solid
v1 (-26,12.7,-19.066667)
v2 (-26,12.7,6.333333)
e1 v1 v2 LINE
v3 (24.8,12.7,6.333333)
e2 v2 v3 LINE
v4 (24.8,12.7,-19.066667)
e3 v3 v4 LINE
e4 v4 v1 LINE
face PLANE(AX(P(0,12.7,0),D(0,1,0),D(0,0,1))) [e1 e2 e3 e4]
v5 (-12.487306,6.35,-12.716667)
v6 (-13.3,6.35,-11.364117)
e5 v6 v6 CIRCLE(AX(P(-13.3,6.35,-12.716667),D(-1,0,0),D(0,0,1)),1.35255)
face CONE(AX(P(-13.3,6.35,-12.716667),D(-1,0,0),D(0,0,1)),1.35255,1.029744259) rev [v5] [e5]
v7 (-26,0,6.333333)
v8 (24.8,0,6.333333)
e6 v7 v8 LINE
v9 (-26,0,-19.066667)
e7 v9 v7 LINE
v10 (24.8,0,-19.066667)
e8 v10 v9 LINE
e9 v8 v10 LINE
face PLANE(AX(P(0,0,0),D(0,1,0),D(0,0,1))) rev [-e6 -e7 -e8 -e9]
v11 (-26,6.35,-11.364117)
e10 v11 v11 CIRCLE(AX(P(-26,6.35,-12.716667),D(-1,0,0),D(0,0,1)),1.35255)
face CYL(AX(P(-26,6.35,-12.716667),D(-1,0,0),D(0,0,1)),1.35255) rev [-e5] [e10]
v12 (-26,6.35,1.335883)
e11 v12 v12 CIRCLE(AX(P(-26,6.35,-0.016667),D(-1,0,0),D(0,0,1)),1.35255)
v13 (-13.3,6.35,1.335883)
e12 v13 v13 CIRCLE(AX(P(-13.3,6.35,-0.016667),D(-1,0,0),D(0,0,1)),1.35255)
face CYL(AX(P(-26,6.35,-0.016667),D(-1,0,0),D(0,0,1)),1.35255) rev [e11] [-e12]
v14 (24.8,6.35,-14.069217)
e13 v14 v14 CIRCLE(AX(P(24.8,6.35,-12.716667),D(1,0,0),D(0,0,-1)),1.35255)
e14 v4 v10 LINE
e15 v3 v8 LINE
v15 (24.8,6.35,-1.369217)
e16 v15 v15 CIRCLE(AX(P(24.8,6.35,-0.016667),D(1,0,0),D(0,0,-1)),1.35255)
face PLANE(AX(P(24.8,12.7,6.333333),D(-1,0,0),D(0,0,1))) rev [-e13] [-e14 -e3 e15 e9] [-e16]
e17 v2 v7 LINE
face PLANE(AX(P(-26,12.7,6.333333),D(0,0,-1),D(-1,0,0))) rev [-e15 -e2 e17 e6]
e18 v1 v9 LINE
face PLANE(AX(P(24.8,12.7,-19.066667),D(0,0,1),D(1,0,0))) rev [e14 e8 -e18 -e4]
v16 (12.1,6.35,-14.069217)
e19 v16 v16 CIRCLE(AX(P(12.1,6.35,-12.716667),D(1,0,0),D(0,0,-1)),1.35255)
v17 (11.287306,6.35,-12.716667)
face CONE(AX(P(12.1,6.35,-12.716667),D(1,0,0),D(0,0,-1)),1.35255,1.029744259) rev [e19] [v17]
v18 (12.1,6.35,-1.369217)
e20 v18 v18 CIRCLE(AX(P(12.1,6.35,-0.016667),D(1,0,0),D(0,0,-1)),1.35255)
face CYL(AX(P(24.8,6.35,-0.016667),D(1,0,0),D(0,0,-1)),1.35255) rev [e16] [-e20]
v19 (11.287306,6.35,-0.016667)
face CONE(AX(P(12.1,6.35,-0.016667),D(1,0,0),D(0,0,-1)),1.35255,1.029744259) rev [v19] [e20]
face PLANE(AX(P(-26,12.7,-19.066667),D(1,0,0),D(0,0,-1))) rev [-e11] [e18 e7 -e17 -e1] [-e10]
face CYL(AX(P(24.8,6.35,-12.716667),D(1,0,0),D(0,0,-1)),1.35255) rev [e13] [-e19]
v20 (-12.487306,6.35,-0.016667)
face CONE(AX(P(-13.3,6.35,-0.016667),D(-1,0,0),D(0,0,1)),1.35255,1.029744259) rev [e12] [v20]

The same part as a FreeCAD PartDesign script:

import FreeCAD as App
import Part
import Sketcher
Q = App.Units.Quantity


def add_polygon(sketch, points):
    """Adds a closed chain of lines whose ends are joined by coincident constraints."""
    first, n = sketch.GeometryCount, len(points)
    for a, b in zip(points, points[1:] + points[:1]):
        sketch.addGeometry(Part.LineSegment(App.Vector(*a, 0), App.Vector(*b, 0)), False)
    for i in range(n):
        sketch.addConstraint(Sketcher.Constraint("Coincident", first + i, 2, first + (i + 1) % n, 1))

doc = App.newDocument("Part")
body = doc.addObject("PartDesign::Body", "Body")

# Sketch on XZ plane
sketch1 = body.newObject("Sketcher::SketchObject", "Sketch")
sketch1.AttachmentSupport = (doc.getObject("XZ_Plane"), [""])
sketch1.MapMode = "FlatFace"
add_polygon(sketch1, [(-26, -19), (-26, 6), (25, 6), (25, -19)])  # lines 0-3
sketch1.addConstraint([
    Sketcher.Constraint("Vertical", 0),
    Sketcher.Constraint("Horizontal", 1),
    Sketcher.Constraint("Vertical", 2),
    Sketcher.Constraint("Horizontal", 3),
    Sketcher.Constraint("DistanceX", 1, 1, 1, 2, Q("2 in")),
    Sketcher.Constraint("DistanceY", 0, 1, 0, 2, Q("1 in")),
    Sketcher.Constraint("DistanceX", 0, 2, -1, 1, Q("26 mm")),
    Sketcher.Constraint("DistanceY", -1, 1, 0, 2, Q("6.333333 mm")),
])
pad1 = body.newObject("PartDesign::Pad", "Pad")
pad1.Profile = sketch1
pad1.Length = Q("0.5 in")
pad1.Reversed = True

# Sketch on XZ plane
sketch2 = body.newObject("Sketcher::SketchObject", "Sketch001")
sketch2.AttachmentSupport = (doc.getObject("XZ_Plane"), [""])
sketch2.MapMode = "FlatFace"
sketch2.AttachmentOffset = App.Placement(App.Vector(0, 0, -0.25 * 25.4), App.Rotation())
add_polygon(sketch2, [(11.3, 0), (24.8, 0), (24.8, -1.4), (12.1, -1.4)])  # lines 0-3
sketch2.addGeometry(Part.LineSegment(App.Vector(24.8, 0, 0), App.Vector(11.3, 0, 0)), True)  # axis
sketch2.addConstraint([
    Sketcher.Constraint("Horizontal", 0),
    Sketcher.Constraint("Vertical", 1),
    Sketcher.Constraint("Horizontal", 2),
    Sketcher.Constraint("Horizontal", 4),
    Sketcher.Constraint("Coincident", 4, 1, 0, 2),
    Sketcher.Constraint("Equal", 0, 4),
    Sketcher.Constraint("DistanceX", 2, 2, 2, 1, Q("0.5 in")),
    Sketcher.Constraint("Angle", 3, Q("121 deg")),
    Sketcher.Constraint("DistanceY", 1, 2, 1, 1, Q("1.35255 mm")),
    Sketcher.Constraint("DistanceX", -1, 1, 0, 2, Q("24.8 mm")),
    Sketcher.Constraint("DistanceY", 0, 2, -1, 1, Q("0.016667 mm")),
])
groove = body.newObject("PartDesign::Groove", "Groove")
groove.Profile = sketch2
groove.ReferenceAxis = (sketch2, ["Axis0"])
groove.Angle = 360
doc.recompute()

linearpattern = body.newObject("PartDesign::LinearPattern", "LinearPattern")
linearpattern.Originals = [groove]
linearpattern.Direction = (doc.getObject("Z_Axis"), [""])
linearpattern.Mode = "offset"
linearpattern.Offset = Q("0.5 in")
linearpattern.Occurrences = 2
linearpattern.Reversed = True
body.Tip = linearpattern
doc.recompute()

datumplane = body.newObject("PartDesign::Plane", "DatumPlane")
datumplane.AttachmentSupport = (doc.getObject("YZ_Plane"), [""])
datumplane.MapMode = "FlatFace"
datumplane.AttachmentOffset = App.Placement(App.Vector(0, 0, -0.6), App.Rotation())
mirrored = body.newObject("PartDesign::Mirrored", "Mirrored")
mirrored.Originals = [groove]
mirrored.MirrorPlane = (datumplane, [""])
body.Tip = mirrored

# Sketch on XZ plane
sketch3 = body.newObject("Sketcher::SketchObject", "Sketch002")
sketch3.AttachmentSupport = (doc.getObject("XZ_Plane"), [""])
sketch3.MapMode = "FlatFace"
sketch3.AttachmentOffset = App.Placement(App.Vector(0, 0, -0.25 * 25.4), App.Rotation())
add_polygon(sketch3, [(-26, -12.7), (-12.5, -12.7), (-13.3, -14.1), (-26, -14.1)])  # lines 0-3
sketch3.addGeometry(Part.LineSegment(App.Vector(-12.5, -12.7, 0), App.Vector(-26, -12.7, 0)), True)  # axis
sketch3.addConstraint([
    Sketcher.Constraint("Horizontal", 0),
    Sketcher.Constraint("Horizontal", 2),
    Sketcher.Constraint("Vertical", 3),
    Sketcher.Constraint("Horizontal", 4),
    Sketcher.Constraint("Coincident", 4, 1, 0, 2),
    Sketcher.Constraint("Vertical", 2, 2, 4, 2),
    Sketcher.Constraint("DistanceX", 2, 2, 2, 1, Q("0.5 in")),
    Sketcher.Constraint("Angle", 1, Q("-121 deg")),
    Sketcher.Constraint("DistanceY", 3, 1, 3, 2, Q("1.35255 mm")),
    Sketcher.Constraint("DistanceX", 1, 2, -1, 1, Q("13.3 mm")),
    Sketcher.Constraint("DistanceY", 0, 2, -1, 1, Q("12.716667 mm")),
])
groove2 = body.newObject("PartDesign::Groove", "Groove001")
groove2.Profile = sketch3
groove2.ReferenceAxis = (sketch3, ["Axis0"])
groove2.Angle = 360

doc.recompute()
